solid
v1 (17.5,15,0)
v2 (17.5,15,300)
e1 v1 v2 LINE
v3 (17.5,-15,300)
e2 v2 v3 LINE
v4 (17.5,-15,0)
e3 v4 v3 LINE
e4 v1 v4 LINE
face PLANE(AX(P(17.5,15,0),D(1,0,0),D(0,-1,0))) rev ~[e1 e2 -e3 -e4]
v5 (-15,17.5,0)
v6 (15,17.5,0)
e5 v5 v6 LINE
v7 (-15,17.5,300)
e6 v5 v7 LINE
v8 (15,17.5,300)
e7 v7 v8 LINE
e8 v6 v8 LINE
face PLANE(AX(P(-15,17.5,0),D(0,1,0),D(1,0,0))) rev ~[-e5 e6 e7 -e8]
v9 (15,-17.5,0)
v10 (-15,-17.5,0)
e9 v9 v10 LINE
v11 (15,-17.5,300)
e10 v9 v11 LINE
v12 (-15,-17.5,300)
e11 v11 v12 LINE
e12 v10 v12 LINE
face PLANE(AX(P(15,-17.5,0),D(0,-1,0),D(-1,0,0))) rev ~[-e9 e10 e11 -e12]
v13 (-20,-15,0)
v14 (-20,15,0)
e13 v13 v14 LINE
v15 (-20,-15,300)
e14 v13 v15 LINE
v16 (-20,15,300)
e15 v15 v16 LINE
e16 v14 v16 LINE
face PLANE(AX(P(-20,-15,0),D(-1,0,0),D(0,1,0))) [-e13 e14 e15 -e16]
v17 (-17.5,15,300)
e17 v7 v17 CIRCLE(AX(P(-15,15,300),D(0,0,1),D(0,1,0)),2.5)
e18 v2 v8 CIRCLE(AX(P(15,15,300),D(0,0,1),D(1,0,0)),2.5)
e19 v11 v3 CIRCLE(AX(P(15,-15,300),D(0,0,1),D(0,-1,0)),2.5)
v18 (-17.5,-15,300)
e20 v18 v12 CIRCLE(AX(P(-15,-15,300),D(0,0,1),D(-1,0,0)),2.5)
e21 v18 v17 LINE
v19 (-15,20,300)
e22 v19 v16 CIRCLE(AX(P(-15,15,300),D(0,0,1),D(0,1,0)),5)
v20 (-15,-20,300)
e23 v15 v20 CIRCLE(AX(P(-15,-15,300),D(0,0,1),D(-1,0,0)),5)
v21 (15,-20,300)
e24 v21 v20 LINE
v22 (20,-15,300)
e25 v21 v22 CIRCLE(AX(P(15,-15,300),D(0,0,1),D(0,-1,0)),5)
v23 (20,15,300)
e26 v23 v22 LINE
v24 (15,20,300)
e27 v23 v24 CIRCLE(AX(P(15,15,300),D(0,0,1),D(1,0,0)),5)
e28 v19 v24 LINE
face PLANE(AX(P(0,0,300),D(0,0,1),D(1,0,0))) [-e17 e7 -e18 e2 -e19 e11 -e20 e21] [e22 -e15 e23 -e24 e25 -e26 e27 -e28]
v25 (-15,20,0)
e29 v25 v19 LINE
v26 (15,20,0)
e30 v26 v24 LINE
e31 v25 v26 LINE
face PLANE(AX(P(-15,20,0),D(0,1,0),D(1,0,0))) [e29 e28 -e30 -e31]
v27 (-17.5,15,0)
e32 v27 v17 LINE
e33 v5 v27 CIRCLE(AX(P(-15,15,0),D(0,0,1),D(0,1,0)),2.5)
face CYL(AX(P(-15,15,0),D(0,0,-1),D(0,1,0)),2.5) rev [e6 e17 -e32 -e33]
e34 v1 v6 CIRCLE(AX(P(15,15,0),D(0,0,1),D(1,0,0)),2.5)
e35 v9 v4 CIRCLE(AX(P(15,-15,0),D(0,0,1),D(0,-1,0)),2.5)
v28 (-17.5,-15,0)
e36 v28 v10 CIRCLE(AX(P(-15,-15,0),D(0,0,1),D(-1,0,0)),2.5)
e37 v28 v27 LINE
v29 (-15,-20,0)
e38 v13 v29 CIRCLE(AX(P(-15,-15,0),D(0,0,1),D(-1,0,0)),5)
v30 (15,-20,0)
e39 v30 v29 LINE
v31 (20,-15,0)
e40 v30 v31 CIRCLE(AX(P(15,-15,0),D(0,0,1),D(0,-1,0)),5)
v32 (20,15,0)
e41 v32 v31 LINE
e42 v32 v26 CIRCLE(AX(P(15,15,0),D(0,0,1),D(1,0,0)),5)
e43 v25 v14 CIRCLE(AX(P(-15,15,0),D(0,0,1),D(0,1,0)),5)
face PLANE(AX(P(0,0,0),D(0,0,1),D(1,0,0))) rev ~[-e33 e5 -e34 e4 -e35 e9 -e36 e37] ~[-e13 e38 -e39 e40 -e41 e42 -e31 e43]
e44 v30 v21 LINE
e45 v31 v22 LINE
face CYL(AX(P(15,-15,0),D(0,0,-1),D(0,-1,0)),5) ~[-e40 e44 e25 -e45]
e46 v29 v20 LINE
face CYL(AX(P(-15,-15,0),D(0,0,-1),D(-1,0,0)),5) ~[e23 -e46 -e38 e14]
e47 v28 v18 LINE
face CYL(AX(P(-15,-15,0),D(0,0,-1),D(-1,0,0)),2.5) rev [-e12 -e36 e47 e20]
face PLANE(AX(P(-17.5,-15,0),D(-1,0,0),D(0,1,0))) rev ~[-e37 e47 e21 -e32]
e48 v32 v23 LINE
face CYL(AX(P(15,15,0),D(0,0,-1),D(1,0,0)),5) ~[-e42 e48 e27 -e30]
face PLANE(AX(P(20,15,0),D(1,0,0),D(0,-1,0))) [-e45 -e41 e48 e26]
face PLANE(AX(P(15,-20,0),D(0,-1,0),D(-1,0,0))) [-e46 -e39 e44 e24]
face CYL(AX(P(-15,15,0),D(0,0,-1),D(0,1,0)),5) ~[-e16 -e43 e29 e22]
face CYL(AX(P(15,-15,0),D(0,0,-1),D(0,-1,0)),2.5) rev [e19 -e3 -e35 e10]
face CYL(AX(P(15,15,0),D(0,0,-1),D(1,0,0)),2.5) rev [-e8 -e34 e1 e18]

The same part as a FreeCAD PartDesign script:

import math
import FreeCAD as App
import Part
import Sketcher
Q = App.Units.Quantity

doc = App.newDocument("Part")
body = doc.addObject("PartDesign::Body", "Body")

# Sketch on XY plane
sketch1 = body.newObject("Sketcher::SketchObject", "Sketch")
sketch1.AttachmentSupport = (doc.getObject("XY_Plane"), [""])
sketch1.MapMode = "FlatFace"
sketch1.addGeometry([
    Part.LineSegment(App.Vector(-20, 15, 0), App.Vector(-20, -15, 0)),  # 0
    Part.ArcOfCircle(Part.Circle(App.Vector(-15, -15, 0), App.Vector(0, 0, 1), 5), math.radians(180), math.radians(270)),  # 1
    Part.LineSegment(App.Vector(-15, -20, 0), App.Vector(15, -20, 0)),  # 2
    Part.ArcOfCircle(Part.Circle(App.Vector(15, -15, 0), App.Vector(0, 0, 1), 5), math.radians(-90), math.radians(0)),  # 3
    Part.LineSegment(App.Vector(20, -15, 0), App.Vector(20, 15, 0)),  # 4
    Part.ArcOfCircle(Part.Circle(App.Vector(15, 15, 0), App.Vector(0, 0, 1), 5), math.radians(0), math.radians(90)),  # 5
    Part.LineSegment(App.Vector(15, 20, 0), App.Vector(-15, 20, 0)),  # 6
    Part.ArcOfCircle(Part.Circle(App.Vector(-15, 15, 0), App.Vector(0, 0, 1), 5), math.radians(90), math.radians(180)),  # 7
    Part.ArcOfCircle(Part.Circle(App.Vector(-15, 15, 0), App.Vector(0, 0, 1), 2.5), math.radians(90), math.radians(180)),  # 8
    Part.LineSegment(App.Vector(-15, 17.5, 0), App.Vector(15, 17.5, 0)),  # 9
    Part.ArcOfCircle(Part.Circle(App.Vector(15, 15, 0), App.Vector(0, 0, 1), 2.5), math.radians(0), math.radians(90)),  # 10
    Part.LineSegment(App.Vector(17.5, 15, 0), App.Vector(17.5, -15, 0)),  # 11
    Part.ArcOfCircle(Part.Circle(App.Vector(15, -15, 0), App.Vector(0, 0, 1), 2.5), math.radians(-90), math.radians(0)),  # 12
    Part.LineSegment(App.Vector(15, -17.5, 0), App.Vector(-15, -17.5, 0)),  # 13
    Part.ArcOfCircle(Part.Circle(App.Vector(-15, -15, 0), App.Vector(0, 0, 1), 2.5), math.radians(180), math.radians(270)),  # 14
    Part.LineSegment(App.Vector(-17.5, -15, 0), App.Vector(-17.5, 15, 0)),  # 15
], False)
sketch1.addConstraint([
    Sketcher.Constraint("Tangent", 0, 2, 1, 1),
    Sketcher.Constraint("Tangent", 1, 2, 2, 1),
    Sketcher.Constraint("Tangent", 2, 2, 3, 1),
    Sketcher.Constraint("Tangent", 3, 2, 4, 1),
    Sketcher.Constraint("Tangent", 4, 2, 5, 1),
    Sketcher.Constraint("Tangent", 5, 2, 6, 1),
    Sketcher.Constraint("Tangent", 6, 2, 7, 1),
    Sketcher.Constraint("Tangent", 7, 2, 0, 1),
    Sketcher.Constraint("Tangent", 8, 1, 9, 1),
    Sketcher.Constraint("Tangent", 9, 2, 10, 2),
    Sketcher.Constraint("Tangent", 10, 1, 11, 1),
    Sketcher.Constraint("Tangent", 11, 2, 12, 2),
    Sketcher.Constraint("Tangent", 12, 1, 13, 1),
    Sketcher.Constraint("Tangent", 13, 2, 14, 2),
    Sketcher.Constraint("Tangent", 14, 1, 15, 1),
    Sketcher.Constraint("Tangent", 15, 2, 8, 2),
    Sketcher.Constraint("Vertical", 0),
    Sketcher.Constraint("Horizontal", 2),
    Sketcher.Constraint("Vertical", 4),
    Sketcher.Constraint("Horizontal", 6),
    Sketcher.Constraint("Horizontal", 9),
    Sketcher.Constraint("Vertical", 11),
    Sketcher.Constraint("Horizontal", 13),
    Sketcher.Constraint("Vertical", 15),
    Sketcher.Constraint("Coincident", 8, 3, 7, 3),
    Sketcher.Constraint("Coincident", 10, 3, 5, 3),
    Sketcher.Constraint("Coincident", 12, 3, 3, 3),
    Sketcher.Constraint("Equal", 1, 3),
    Sketcher.Constraint("Equal", 3, 5),
    Sketcher.Constraint("Equal", 5, 7),
    Sketcher.Constraint("Equal", 12, 14),
    Sketcher.Constraint("Symmetric", 1, 3, 5, 3, -1, 1),
    Sketcher.Constraint("Equal", 13, 0),
    Sketcher.Constraint("Radius", 1, Q("5 mm")),
    Sketcher.Constraint("Radius", 8, Q("2.5 mm")),
    Sketcher.Constraint("DistanceX", 0, 2, -1, 1, Q("20 mm")),
])
pad1 = body.newObject("PartDesign::Pad", "Pad")
pad1.Profile = sketch1
pad1.Length = 300

doc.recompute()
